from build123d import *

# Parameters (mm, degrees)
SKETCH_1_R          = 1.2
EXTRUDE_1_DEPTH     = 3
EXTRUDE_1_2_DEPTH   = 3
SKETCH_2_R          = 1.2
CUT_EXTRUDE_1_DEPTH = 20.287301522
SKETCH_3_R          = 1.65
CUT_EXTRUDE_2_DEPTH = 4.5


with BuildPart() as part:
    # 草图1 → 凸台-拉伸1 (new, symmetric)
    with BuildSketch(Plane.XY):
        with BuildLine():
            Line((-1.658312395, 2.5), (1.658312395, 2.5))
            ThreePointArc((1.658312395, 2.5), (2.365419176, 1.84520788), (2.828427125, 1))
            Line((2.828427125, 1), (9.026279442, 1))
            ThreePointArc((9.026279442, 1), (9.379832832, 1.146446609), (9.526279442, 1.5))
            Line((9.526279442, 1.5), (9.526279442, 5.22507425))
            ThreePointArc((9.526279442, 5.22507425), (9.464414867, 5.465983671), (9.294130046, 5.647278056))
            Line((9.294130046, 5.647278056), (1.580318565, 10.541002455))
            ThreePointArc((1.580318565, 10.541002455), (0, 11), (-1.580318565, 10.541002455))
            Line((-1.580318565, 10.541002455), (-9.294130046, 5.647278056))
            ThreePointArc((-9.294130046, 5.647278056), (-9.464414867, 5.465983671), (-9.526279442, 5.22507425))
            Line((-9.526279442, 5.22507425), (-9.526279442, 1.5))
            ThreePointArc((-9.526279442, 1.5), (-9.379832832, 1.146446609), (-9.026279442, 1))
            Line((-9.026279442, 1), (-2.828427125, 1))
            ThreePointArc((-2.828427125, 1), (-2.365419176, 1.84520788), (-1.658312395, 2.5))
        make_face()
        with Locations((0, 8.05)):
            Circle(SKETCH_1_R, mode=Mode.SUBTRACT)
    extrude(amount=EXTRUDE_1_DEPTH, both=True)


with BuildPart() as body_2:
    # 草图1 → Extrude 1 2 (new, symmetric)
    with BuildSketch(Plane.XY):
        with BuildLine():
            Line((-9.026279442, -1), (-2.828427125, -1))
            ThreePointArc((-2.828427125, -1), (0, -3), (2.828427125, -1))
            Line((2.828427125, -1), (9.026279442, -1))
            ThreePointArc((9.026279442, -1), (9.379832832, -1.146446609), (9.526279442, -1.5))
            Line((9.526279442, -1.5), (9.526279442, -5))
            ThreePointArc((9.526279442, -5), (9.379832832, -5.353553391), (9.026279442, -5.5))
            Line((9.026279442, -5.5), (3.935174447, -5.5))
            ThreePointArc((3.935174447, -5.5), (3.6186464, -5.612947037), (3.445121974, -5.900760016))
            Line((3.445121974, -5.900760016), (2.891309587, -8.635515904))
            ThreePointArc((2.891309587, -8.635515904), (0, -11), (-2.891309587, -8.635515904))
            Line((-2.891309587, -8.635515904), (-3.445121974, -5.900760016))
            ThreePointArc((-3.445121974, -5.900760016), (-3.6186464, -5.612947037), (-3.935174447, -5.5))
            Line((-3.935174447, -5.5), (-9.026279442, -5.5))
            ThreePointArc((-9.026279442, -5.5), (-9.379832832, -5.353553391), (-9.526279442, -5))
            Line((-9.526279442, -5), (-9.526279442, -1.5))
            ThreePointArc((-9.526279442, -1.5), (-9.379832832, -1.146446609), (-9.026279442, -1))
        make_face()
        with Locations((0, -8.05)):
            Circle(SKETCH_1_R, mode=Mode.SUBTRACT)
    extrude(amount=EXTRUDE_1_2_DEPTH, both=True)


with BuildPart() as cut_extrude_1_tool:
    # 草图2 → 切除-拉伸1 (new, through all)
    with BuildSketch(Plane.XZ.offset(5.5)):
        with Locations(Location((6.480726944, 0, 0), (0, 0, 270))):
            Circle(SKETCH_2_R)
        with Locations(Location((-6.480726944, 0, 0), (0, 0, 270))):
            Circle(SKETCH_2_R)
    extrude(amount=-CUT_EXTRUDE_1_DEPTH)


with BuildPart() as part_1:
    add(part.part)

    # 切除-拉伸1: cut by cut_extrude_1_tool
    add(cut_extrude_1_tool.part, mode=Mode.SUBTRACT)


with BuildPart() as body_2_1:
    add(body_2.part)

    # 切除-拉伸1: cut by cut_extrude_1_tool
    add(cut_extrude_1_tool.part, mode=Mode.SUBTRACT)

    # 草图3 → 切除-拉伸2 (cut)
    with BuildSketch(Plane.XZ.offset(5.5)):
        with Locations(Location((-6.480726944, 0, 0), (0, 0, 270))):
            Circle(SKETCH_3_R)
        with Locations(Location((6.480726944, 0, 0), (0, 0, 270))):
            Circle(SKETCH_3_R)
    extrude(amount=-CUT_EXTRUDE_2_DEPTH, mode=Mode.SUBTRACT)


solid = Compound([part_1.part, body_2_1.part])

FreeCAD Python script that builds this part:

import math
import FreeCAD as App
import Part
import Sketcher

V = App.Vector

doc = App.newDocument("Part")
body = doc.addObject("PartDesign::Body", "Body")

# Sketch on XY plane
sketch1 = body.newObject("Sketcher::SketchObject", "Sketch")
sketch1.AttachmentSupport = (doc.getObject("XY_Plane"), [""])
sketch1.MapMode = "FlatFace"
sketch1.addGeometry([
    Part.LineSegment(V(-1.66, 2.5, 0), V(1.66, 2.5, 0)),  # 0
    Part.ArcOfCircle(Part.Circle(V(0, 0, 0), V(0, 0, 1), 3), math.radians(19), math.radians(56)),  # 1
    Part.LineSegment(V(2.83, 1, 0), V(9.03, 1, 0)),  # 2
    Part.ArcOfCircle(Part.Circle(V(9.03, 1.5, 0), V(0, 0, 1), 0.5), math.radians(-90), math.radians(0)),  # 3
    Part.LineSegment(V(9.53, 1.5, 0), V(9.53, 5.23, 0)),  # 4
    Part.ArcOfCircle(Part.Circle(V(9.03, 5.23, 0), V(0, 0, 1), 0.5), math.radians(0), math.radians(58)),  # 5
    Part.LineSegment(V(9.29, 5.65, 0), V(1.58, 10.54, 0)),  # 6
    Part.ArcOfCircle(Part.Circle(V(0, 8.05, 0), V(0, 0, 1), 2.95), math.radians(58), math.radians(122)),  # 7
    Part.LineSegment(V(-1.58, 10.54, 0), V(-9.29, 5.65, 0)),  # 8
    Part.ArcOfCircle(Part.Circle(V(-9.03, 5.23, 0), V(0, 0, 1), 0.5), math.radians(122), math.radians(180)),  # 9
    Part.LineSegment(V(-9.53, 5.23, 0), V(-9.53, 1.5, 0)),  # 10
    Part.ArcOfCircle(Part.Circle(V(-9.03, 1.5, 0), V(0, 0, 1), 0.5), math.radians(180), math.radians(270)),  # 11
    Part.LineSegment(V(-9.03, 1, 0), V(-2.83, 1, 0)),  # 12
    Part.ArcOfCircle(Part.Circle(V(0, 0, 0), V(0, 0, 1), 3), math.radians(124), math.radians(161)),  # 13
    Part.Circle(V(0, 8.05, 0), V(0, 0, 1), 1.2),  # 14
], False)
sketch1.addConstraint([
    Sketcher.Constraint("Coincident", 0, 2, 1, 2),
    Sketcher.Constraint("Coincident", 1, 1, 2, 1),
    Sketcher.Constraint("Tangent", 2, 2, 3, 1),
    Sketcher.Constraint("Tangent", 3, 2, 4, 1),
    Sketcher.Constraint("Tangent", 4, 2, 5, 1),
    Sketcher.Constraint("Tangent", 5, 2, 6, 1),
    Sketcher.Constraint("Tangent", 6, 2, 7, 1),
    Sketcher.Constraint("Tangent", 7, 2, 8, 1),
    Sketcher.Constraint("Tangent", 8, 2, 9, 1),
    Sketcher.Constraint("Tangent", 9, 2, 10, 1),
    Sketcher.Constraint("Tangent", 10, 2, 11, 1),
    Sketcher.Constraint("Tangent", 11, 2, 12, 1),
    Sketcher.Constraint("Coincident", 12, 2, 13, 2),
    Sketcher.Constraint("Coincident", 13, 1, 0, 1),
    Sketcher.Constraint("Horizontal", 0),
    Sketcher.Constraint("Horizontal", 2),
    Sketcher.Constraint("Vertical", 4),
    Sketcher.Constraint("Vertical", 10),
    Sketcher.Constraint("Horizontal", 12),
    Sketcher.Constraint("Coincident", 1, 3, -1, 1),
    Sketcher.Constraint("Coincident", 13, 3, -1, 1),
    Sketcher.Constraint("Coincident", 14, 3, 7, 3),
    Sketcher.Constraint("Equal", 3, 5),
    Sketcher.Constraint("Equal", 5, 9),
    Sketcher.Constraint("Equal", 9, 11),
    Sketcher.Constraint("Equal", 1, 13),
    Sketcher.Constraint("Symmetric", 5, 3, 9, 3, -2),
    Sketcher.Constraint("PointOnObject", 7, 3, -2),
    Sketcher.Constraint("Horizontal", 3, 3, 11, 3),
    Sketcher.Constraint("Radius", 1, 3.0),
    Sketcher.Constraint("Diameter", 14, 2.4),
    Sketcher.Constraint("Radius", 3, 0.5),
    Sketcher.Constraint("Radius", 7, 2.95),
    Sketcher.Constraint("DistanceY", -1, 1, 1, 1, 1.0),
    Sketcher.Constraint("DistanceY", 3, 3, 0, 2, 1.0),
    Sketcher.Constraint("DistanceY", -1, 1, 7, 3, 8.05),
    Sketcher.Constraint("DistanceX", 2, 1, 2, 2, 6.197852),
    Sketcher.Constraint("DistanceY", 4, 1, 4, 2, 3.725074),
])
pad1 = body.newObject("PartDesign::Pad", "Pad")
pad1.Profile = sketch1
pad1.Length = 6
pad1.Midplane = True
body2 = doc.addObject("PartDesign::Body", "Body001")

# Sketch on XY plane
sketch2 = body2.newObject("Sketcher::SketchObject", "Sketch001")
sketch2.AttachmentSupport = (doc.getObject("XY_Plane001"), [""])
sketch2.MapMode = "FlatFace"
sketch2.addGeometry([
    Part.LineSegment(V(-2.83, -1, 0), V(-9.03, -1, 0)),  # 0
    Part.ArcOfCircle(Part.Circle(V(-9.03, -1.5, 0), V(0, 0, 1), 0.5), math.radians(90), math.radians(180)),  # 1
    Part.LineSegment(V(-9.53, -1.5, 0), V(-9.53, -5, 0)),  # 2
    Part.ArcOfCircle(Part.Circle(V(-9.03, -5, 0), V(0, 0, 1), 0.5), math.radians(180), math.radians(270)),  # 3
    Part.LineSegment(V(-9.03, -5.5, 0), V(-3.94, -5.5, 0)),  # 4
    Part.ArcOfCircle(Part.Circle(V(-3.94, -6, 0), V(0, 0, 1), 0.5), math.radians(11), math.radians(90)),  # 5
    Part.LineSegment(V(-3.45, -5.9, 0), V(-2.89, -8.64, 0)),  # 6
    Part.ArcOfCircle(Part.Circle(V(0, -8.05, 0), V(0, 0, 1), 2.95), math.radians(-169), math.radians(-11)),  # 7
    Part.LineSegment(V(2.89, -8.64, 0), V(3.45, -5.9, 0)),  # 8
    Part.ArcOfCircle(Part.Circle(V(3.94, -6, 0), V(0, 0, 1), 0.5), math.radians(90), math.radians(169)),  # 9
    Part.LineSegment(V(3.94, -5.5, 0), V(9.03, -5.5, 0)),  # 10
    Part.ArcOfCircle(Part.Circle(V(9.03, -5, 0), V(0, 0, 1), 0.5), math.radians(-90), math.radians(0)),  # 11
    Part.LineSegment(V(9.53, -5, 0), V(9.53, -1.5, 0)),  # 12
    Part.ArcOfCircle(Part.Circle(V(9.03, -1.5, 0), V(0, 0, 1), 0.5), math.radians(0), math.radians(90)),  # 13
    Part.LineSegment(V(9.03, -1, 0), V(2.83, -1, 0)),  # 14
    Part.ArcOfCircle(Part.Circle(V(0, 0, 0), V(0, 0, 1), 3), math.radians(-161), math.radians(-19)),  # 15
    Part.Circle(V(0, -8.05, 0), V(0, 0, 1), 1.2),  # 16
], False)
sketch2.addConstraint([
    Sketcher.Constraint("Tangent", 0, 2, 1, 1),
    Sketcher.Constraint("Tangent", 1, 2, 2, 1),
    Sketcher.Constraint("Tangent", 2, 2, 3, 1),
    Sketcher.Constraint("Tangent", 3, 2, 4, 1),
    Sketcher.Constraint("Tangent", 4, 2, 5, 2),
    Sketcher.Constraint("Tangent", 5, 1, 6, 1),
    Sketcher.Constraint("Tangent", 6, 2, 7, 1),
    Sketcher.Constraint("Tangent", 7, 2, 8, 1),
    Sketcher.Constraint("Tangent", 8, 2, 9, 2),
    Sketcher.Constraint("Tangent", 9, 1, 10, 1),
    Sketcher.Constraint("Tangent", 10, 2, 11, 1),
    Sketcher.Constraint("Tangent", 11, 2, 12, 1),
    Sketcher.Constraint("Tangent", 12, 2, 13, 1),
    Sketcher.Constraint("Tangent", 13, 2, 14, 1),
    Sketcher.Constraint("Coincident", 14, 2, 15, 2),
    Sketcher.Constraint("Coincident", 15, 1, 0, 1),
    Sketcher.Constraint("Horizontal", 0),
    Sketcher.Constraint("Vertical", 2),
    Sketcher.Constraint("Horizontal", 4),
    Sketcher.Constraint("Horizontal", 10),
    Sketcher.Constraint("Vertical", 12),
    Sketcher.Constraint("Horizontal", 14),
    Sketcher.Constraint("Coincident", 15, 3, -1, 1),
    Sketcher.Constraint("Coincident", 16, 3, 7, 3),
    Sketcher.Constraint("Equal", 1, 3),
    Sketcher.Constraint("Equal", 3, 5),
    Sketcher.Constraint("Equal", 5, 9),
    Sketcher.Constraint("Equal", 9, 11),
    Sketcher.Constraint("Equal", 11, 13),
    Sketcher.Constraint("Symmetric", 5, 3, 9, 3, -2),
    Sketcher.Constraint("Symmetric", 1, 3, 13, 3, -2),
    Sketcher.Constraint("PointOnObject", 7, 3, -2),
    Sketcher.Constraint("Radius", 15, 3.0),
    Sketcher.Constraint("Diameter", 16, 2.4),
    Sketcher.Constraint("Radius", 1, 0.5),
    Sketcher.Constraint("Radius", 7, 2.95),
    Sketcher.Constraint("DistanceY", 2, 2, 2, 1, 3.5),
    Sketcher.Constraint("DistanceY", 3, 3, -1, 1, 5.0),
    Sketcher.Constraint("DistanceY", 7, 3, -1, 1, 8.05),
    Sketcher.Constraint("Distance", 6, 2.790268),
    Sketcher.Constraint("DistanceX", 0, 2, 0, 1, 6.197852),
])
pad2 = body2.newObject("PartDesign::Pad", "Pad001")
pad2.Profile = sketch2
pad2.Length = 6
pad2.Midplane = True
body3 = doc.addObject("PartDesign::Body", "Body002")
body3.AllowCompound = True

# Sketch on XZ plane
sketch3 = body3.newObject("Sketcher::SketchObject", "Sketch002")
sketch3.AttachmentSupport = (doc.getObject("XZ_Plane002"), [""])
sketch3.MapMode = "FlatFace"
sketch3.AttachmentOffset = App.Placement(V(0, 0, 5.5), App.Rotation())
sketch3.addGeometry([
    Part.Circle(V(6.5, 0, 0), V(0, 0, 1), 1.2),
    Part.Circle(V(-6.5, 0, 0), V(0, 0, 1), 1.2),
], False)
sketch3.addConstraint([
    Sketcher.Constraint("Equal", 0, 1),
    Sketcher.Constraint("Symmetric", 0, 3, 1, 3, -1, 1),
    Sketcher.Constraint("PointOnObject", 0, 3, -1),
    Sketcher.Constraint("Diameter", 0, 2.4),
    Sketcher.Constraint("DistanceX", -1, 1, 0, 3, 6.480727),
])
pad3 = body3.newObject("PartDesign::Pad", "Pad002")
pad3.Profile = sketch3
pad3.Length = 20.287302
pad3.Reversed = True
doc.recompute()

body4 = doc.addObject("PartDesign::Body", "Body003")
body4.BaseFeature = body3
boolean = body.newObject("PartDesign::Boolean", "Boolean")
boolean.Type = "Cut"
boolean.addObjects([body4])
doc.recompute()

boolean2 = body2.newObject("PartDesign::Boolean", "Boolean001")
boolean2.Type = "Cut"
boolean2.addObjects([body3])

# Sketch on XZ plane
sketch4 = body2.newObject("Sketcher::SketchObject", "Sketch003")
sketch4.AttachmentSupport = (doc.getObject("XZ_Plane001"), [""])
sketch4.MapMode = "FlatFace"
sketch4.AttachmentOffset = App.Placement(V(0, 0, 5.5), App.Rotation())
sketch4.addGeometry([
    Part.Circle(V(-6.5, 0, 0), V(0, 0, 1), 1.6),
    Part.Circle(V(6.5, 0, 0), V(0, 0, 1), 1.6),
], False)
sketch4.addConstraint([
    Sketcher.Constraint("Equal", 0, 1),
    Sketcher.Constraint("Symmetric", 0, 3, 1, 3, -1, 1),
    Sketcher.Constraint("PointOnObject", 0, 3, -1),
    Sketcher.Constraint("Diameter", 0, 3.3),
    Sketcher.Constraint("DistanceX", 0, 3, -1, 1, 6.480727),
])
pocket1 = body2.newObject("PartDesign::Pocket", "Pocket")
pocket1.Profile = sketch4
pocket1.Length = 4.5

doc.recompute()
